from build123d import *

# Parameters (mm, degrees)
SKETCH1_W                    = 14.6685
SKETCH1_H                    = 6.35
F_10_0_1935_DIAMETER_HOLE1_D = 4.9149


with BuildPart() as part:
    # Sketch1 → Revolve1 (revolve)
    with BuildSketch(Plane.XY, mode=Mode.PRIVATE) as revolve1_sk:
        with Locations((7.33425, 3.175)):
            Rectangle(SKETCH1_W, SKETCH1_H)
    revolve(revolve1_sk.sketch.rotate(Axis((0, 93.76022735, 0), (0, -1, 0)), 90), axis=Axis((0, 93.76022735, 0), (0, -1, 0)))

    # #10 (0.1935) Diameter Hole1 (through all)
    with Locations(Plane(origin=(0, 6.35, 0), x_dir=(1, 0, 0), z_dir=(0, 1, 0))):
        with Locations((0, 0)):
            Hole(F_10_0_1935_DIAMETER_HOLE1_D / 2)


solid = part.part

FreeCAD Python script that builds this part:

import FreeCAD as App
import Part
import Sketcher
Q = App.Units.Quantity


def add_polygon(sketch, points):
    """Adds a closed chain of lines whose ends are joined by coincident constraints."""
    first, n = sketch.GeometryCount, len(points)
    for a, b in zip(points, points[1:] + points[:1]):
        sketch.addGeometry(Part.LineSegment(App.Vector(*a, 0), App.Vector(*b, 0)), False)
    for i in range(n):
        sketch.addConstraint(Sketcher.Constraint("Coincident", first + i, 2, first + (i + 1) % n, 1))

doc = App.newDocument("Part")
body = doc.addObject("PartDesign::Body", "Body")

sketch1 = body.newObject("Sketcher::SketchObject", "Sketch")
sketch1.AttachmentSupport = (doc.getObject("XY_Plane"), [""])
sketch1.MapMode = "FlatFace"
add_polygon(sketch1, [(0, 6), (0, 0), (15, 0), (15, 6)])
sketch1.addConstraint(Sketcher.Constraint("Vertical", 0))
sketch1.addConstraint(Sketcher.Constraint("Horizontal", 1))
sketch1.addConstraint(Sketcher.Constraint("Vertical", 2))
sketch1.addConstraint(Sketcher.Constraint("Horizontal", 3))
sketch1.addConstraint(Sketcher.Constraint("Coincident", 0, 2, -1, 1))
sketch1.addConstraint(Sketcher.Constraint("DistanceY", 0, 2, 0, 1, Q("0.25 in")))
sketch1.addConstraint(Sketcher.Constraint("DistanceX", 1, 1, 1, 2, Q("0.5775 in")))
revolution = body.newObject("PartDesign::Revolution", "Revolution")
revolution.Profile = sketch1
revolution.ReferenceAxis = (sketch1, ["V_Axis"])
revolution.Angle = 360

sketch2 = body.newObject("Sketcher::SketchObject", "Sketch001")
sketch2.AttachmentSupport = (doc.getObject("XZ_Plane"), [""])
sketch2.MapMode = "FlatFace"
sketch2.AttachmentOffset = App.Placement(App.Vector(0, 0, -0.25 * 25.4), App.Rotation())
sketch2.addGeometry(Part.Circle(App.Vector(0, 0, 0), App.Vector(0, 0, 1), 2.5), False)
sketch2.addConstraint(Sketcher.Constraint("Coincident", 0, 3, -1, 1))
sketch2.addConstraint(Sketcher.Constraint("Diameter", 0, Q("0.1935 in")))
doc.recompute()
hole = body.newObject("PartDesign::Hole", "Hole")
hole.Profile = sketch2
hole.ThreadType = "None"
hole.Diameter = Q("0.1935 in")
hole.DepthType = "ThroughAll"
hole.Reversed = True

doc.recompute()
